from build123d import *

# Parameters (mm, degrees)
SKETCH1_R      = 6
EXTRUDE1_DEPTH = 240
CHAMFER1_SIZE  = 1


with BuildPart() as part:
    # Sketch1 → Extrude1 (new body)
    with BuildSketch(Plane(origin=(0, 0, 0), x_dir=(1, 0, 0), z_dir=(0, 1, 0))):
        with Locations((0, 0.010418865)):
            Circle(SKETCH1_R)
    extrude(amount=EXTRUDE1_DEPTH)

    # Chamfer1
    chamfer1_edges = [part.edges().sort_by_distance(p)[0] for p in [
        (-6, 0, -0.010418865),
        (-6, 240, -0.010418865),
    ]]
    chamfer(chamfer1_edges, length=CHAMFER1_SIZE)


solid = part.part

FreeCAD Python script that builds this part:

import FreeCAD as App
import Part
import Sketcher
from FreeCAD import Vector
Q = App.Units.Quantity


def edges_at(feature, points):
    """Names of the edges that pass closest to the given points."""
    edges = feature.Shape.Edges
    near = lambda p: min(range(len(edges)), key=lambda i: edges[i].distToShape(Part.Vertex(*p))[0])
    return sorted({f"Edge{near(p) + 1}" for p in points})

doc = App.newDocument("Part")
body = doc.addObject("PartDesign::Body", "Body")

sketch1 = body.newObject("Sketcher::SketchObject", "Sketch")
sketch1.AttachmentSupport = (doc.getObject("XZ_Plane"), [""])
sketch1.MapMode = "FlatFace"
sketch1.addGeometry(Part.Circle(Vector(0, 0, 0), Vector(0, 0, 1), 6), False)
sketch1.addConstraint([
    Sketcher.Constraint("PointOnObject", 0, 3, -2),
    Sketcher.Constraint("Diameter", 0, Q("12 mm")),
    Sketcher.Constraint("DistanceY", 0, 3, -1, 1, Q("0.010419 mm")),
])
pad1 = body.newObject("PartDesign::Pad", "Pad")
pad1.Profile = sketch1
pad1.Length = 240
pad1.Reversed = True
doc.recompute()

chamfer = body.newObject("PartDesign::Chamfer", "Chamfer")
chamfer.Base = (pad1, edges_at(pad1, [(-6, 0, -0.01), (-6, 240, -0.01)]))
chamfer.Size = 1

doc.recompute()
